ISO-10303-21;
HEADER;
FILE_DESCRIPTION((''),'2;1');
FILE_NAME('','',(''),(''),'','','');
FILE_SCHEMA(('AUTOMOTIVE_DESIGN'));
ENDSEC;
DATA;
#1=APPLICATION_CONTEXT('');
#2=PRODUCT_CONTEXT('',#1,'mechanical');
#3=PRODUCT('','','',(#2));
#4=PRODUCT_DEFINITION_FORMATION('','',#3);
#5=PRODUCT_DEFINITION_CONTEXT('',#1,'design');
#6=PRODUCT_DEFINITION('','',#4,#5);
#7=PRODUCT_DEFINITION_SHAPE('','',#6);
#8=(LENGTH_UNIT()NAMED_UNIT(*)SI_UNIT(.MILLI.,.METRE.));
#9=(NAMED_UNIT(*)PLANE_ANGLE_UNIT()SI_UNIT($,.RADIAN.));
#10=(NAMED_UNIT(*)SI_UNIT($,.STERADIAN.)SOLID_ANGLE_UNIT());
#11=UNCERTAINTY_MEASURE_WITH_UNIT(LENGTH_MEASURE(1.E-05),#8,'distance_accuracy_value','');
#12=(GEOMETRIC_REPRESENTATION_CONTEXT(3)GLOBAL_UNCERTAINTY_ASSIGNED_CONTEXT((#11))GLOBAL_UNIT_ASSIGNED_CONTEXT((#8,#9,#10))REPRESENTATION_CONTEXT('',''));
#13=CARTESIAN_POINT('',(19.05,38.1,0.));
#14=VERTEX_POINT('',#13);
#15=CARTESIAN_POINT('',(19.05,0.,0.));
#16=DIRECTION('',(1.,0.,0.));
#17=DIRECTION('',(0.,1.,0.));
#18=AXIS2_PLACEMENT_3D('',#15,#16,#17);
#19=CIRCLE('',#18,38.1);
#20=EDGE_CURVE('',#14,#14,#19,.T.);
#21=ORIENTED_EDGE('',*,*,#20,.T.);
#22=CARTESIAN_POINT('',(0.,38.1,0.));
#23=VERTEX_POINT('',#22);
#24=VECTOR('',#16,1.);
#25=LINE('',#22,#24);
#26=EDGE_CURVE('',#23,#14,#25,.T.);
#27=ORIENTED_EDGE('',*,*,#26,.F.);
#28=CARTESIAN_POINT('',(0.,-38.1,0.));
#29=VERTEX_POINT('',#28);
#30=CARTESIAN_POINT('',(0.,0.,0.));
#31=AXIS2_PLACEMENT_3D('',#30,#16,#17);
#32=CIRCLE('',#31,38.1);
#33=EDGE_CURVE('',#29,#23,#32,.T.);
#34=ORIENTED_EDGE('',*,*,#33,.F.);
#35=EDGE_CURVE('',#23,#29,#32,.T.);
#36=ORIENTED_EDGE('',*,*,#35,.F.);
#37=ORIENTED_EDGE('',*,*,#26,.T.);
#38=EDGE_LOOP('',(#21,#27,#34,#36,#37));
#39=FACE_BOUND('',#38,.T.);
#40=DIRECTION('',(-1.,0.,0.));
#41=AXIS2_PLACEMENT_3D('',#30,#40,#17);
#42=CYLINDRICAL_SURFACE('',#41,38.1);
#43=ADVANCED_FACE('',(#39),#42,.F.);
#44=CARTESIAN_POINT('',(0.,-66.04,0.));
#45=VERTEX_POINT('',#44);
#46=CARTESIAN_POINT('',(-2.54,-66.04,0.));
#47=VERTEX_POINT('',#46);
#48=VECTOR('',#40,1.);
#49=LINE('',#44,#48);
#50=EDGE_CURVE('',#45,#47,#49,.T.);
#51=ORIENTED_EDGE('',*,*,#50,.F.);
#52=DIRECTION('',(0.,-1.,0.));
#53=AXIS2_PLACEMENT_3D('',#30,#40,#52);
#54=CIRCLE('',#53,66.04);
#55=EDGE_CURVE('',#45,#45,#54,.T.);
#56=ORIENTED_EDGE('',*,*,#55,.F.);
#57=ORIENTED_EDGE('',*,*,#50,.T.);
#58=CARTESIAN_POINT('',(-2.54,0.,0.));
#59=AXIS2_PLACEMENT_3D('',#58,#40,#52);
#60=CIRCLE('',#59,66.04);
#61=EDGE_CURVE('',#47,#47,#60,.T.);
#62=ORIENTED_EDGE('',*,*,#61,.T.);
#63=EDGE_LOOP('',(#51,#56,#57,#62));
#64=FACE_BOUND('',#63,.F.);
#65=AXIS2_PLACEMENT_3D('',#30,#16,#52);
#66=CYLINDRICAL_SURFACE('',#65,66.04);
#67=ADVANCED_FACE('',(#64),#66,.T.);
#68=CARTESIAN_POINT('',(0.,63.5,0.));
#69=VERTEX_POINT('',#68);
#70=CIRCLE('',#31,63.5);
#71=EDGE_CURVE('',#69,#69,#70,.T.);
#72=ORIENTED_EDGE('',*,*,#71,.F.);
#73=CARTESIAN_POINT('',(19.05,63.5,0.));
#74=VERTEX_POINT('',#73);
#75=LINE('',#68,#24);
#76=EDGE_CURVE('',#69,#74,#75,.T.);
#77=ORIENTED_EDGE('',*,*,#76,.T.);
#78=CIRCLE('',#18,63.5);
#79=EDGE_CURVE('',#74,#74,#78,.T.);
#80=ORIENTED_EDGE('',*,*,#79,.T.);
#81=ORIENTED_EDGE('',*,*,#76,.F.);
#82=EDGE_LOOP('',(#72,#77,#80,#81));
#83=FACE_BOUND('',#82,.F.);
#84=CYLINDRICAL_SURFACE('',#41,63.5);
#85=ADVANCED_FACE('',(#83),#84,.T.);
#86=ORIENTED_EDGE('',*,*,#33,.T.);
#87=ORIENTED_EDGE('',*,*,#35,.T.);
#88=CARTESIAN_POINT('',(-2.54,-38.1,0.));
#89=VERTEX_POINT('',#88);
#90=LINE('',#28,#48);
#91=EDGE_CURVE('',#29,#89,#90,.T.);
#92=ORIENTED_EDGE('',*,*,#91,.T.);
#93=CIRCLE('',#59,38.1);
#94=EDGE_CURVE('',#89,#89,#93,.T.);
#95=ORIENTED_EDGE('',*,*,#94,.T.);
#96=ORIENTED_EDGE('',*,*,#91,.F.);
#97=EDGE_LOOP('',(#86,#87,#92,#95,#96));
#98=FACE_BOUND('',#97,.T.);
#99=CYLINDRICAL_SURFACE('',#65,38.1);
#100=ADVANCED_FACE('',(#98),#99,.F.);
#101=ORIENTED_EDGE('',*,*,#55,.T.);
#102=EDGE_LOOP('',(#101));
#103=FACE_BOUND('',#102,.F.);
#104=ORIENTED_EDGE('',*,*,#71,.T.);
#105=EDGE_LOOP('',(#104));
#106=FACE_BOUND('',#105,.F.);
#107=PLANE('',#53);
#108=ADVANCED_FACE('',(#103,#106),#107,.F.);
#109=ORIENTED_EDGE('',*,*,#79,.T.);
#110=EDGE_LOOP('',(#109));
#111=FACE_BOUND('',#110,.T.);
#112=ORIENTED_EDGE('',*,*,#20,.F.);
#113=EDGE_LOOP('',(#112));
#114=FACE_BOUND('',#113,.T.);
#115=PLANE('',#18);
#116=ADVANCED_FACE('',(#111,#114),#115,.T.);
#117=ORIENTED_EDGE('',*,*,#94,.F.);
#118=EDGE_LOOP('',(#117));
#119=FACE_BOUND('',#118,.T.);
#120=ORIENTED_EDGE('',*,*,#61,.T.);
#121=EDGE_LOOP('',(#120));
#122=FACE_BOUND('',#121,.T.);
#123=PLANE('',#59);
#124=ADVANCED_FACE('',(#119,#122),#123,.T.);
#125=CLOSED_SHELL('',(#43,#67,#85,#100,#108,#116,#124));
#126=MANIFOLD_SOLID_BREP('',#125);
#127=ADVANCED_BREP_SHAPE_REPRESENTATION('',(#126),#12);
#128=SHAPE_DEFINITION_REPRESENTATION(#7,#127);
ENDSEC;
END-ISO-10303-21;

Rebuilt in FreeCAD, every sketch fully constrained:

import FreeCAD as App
import Part
import Sketcher
Q = App.Units.Quantity

doc = App.newDocument("Part")
body = doc.addObject("PartDesign::Body", "Body")

# Sketch on YZ plane
sketch1 = body.newObject("Sketcher::SketchObject", "Sketch")
sketch1.AttachmentSupport = (doc.getObject("YZ_Plane"), [""])
sketch1.MapMode = "FlatFace"
sketch1.addGeometry([
    Part.Circle(App.Vector(0, 0, 0), App.Vector(0, 0, 1), 64),
    Part.Circle(App.Vector(0, 0, 0), App.Vector(0, 0, 1), 38),
], False)
sketch1.addConstraint([
    Sketcher.Constraint("Coincident", 0, 3, -1, 1),
    Sketcher.Constraint("Coincident", 1, 3, -1, 1),
    Sketcher.Constraint("Diameter", 0, Q("5 in")),
    Sketcher.Constraint("Diameter", 1, Q("3 in")),
])
pad1 = body.newObject("PartDesign::Pad", "Pad")
pad1.Profile = sketch1
pad1.Length = Q("0.75 in")

# Sketch on YZ plane
sketch2 = body.newObject("Sketcher::SketchObject", "Sketch001")
sketch2.AttachmentSupport = (doc.getObject("YZ_Plane"), [""])
sketch2.MapMode = "FlatFace"
sketch2.addGeometry([
    Part.Circle(App.Vector(0, 0, 0), App.Vector(0, 0, 1), 66),
    Part.Circle(App.Vector(0, 0, 0), App.Vector(0, 0, 1), 38),
], False)
sketch2.addConstraint([
    Sketcher.Constraint("Coincident", 0, 3, -1, 1),
    Sketcher.Constraint("Coincident", 1, 3, -1, 1),
    Sketcher.Constraint("Diameter", 1, Q("3 in")),
    Sketcher.Constraint("Diameter", 0, Q("5.2 in")),
])
pad2 = body.newObject("PartDesign::Pad", "Pad001")
pad2.Profile = sketch2
pad2.Length = Q("0.1 in")
pad2.Reversed = True

doc.recompute()
